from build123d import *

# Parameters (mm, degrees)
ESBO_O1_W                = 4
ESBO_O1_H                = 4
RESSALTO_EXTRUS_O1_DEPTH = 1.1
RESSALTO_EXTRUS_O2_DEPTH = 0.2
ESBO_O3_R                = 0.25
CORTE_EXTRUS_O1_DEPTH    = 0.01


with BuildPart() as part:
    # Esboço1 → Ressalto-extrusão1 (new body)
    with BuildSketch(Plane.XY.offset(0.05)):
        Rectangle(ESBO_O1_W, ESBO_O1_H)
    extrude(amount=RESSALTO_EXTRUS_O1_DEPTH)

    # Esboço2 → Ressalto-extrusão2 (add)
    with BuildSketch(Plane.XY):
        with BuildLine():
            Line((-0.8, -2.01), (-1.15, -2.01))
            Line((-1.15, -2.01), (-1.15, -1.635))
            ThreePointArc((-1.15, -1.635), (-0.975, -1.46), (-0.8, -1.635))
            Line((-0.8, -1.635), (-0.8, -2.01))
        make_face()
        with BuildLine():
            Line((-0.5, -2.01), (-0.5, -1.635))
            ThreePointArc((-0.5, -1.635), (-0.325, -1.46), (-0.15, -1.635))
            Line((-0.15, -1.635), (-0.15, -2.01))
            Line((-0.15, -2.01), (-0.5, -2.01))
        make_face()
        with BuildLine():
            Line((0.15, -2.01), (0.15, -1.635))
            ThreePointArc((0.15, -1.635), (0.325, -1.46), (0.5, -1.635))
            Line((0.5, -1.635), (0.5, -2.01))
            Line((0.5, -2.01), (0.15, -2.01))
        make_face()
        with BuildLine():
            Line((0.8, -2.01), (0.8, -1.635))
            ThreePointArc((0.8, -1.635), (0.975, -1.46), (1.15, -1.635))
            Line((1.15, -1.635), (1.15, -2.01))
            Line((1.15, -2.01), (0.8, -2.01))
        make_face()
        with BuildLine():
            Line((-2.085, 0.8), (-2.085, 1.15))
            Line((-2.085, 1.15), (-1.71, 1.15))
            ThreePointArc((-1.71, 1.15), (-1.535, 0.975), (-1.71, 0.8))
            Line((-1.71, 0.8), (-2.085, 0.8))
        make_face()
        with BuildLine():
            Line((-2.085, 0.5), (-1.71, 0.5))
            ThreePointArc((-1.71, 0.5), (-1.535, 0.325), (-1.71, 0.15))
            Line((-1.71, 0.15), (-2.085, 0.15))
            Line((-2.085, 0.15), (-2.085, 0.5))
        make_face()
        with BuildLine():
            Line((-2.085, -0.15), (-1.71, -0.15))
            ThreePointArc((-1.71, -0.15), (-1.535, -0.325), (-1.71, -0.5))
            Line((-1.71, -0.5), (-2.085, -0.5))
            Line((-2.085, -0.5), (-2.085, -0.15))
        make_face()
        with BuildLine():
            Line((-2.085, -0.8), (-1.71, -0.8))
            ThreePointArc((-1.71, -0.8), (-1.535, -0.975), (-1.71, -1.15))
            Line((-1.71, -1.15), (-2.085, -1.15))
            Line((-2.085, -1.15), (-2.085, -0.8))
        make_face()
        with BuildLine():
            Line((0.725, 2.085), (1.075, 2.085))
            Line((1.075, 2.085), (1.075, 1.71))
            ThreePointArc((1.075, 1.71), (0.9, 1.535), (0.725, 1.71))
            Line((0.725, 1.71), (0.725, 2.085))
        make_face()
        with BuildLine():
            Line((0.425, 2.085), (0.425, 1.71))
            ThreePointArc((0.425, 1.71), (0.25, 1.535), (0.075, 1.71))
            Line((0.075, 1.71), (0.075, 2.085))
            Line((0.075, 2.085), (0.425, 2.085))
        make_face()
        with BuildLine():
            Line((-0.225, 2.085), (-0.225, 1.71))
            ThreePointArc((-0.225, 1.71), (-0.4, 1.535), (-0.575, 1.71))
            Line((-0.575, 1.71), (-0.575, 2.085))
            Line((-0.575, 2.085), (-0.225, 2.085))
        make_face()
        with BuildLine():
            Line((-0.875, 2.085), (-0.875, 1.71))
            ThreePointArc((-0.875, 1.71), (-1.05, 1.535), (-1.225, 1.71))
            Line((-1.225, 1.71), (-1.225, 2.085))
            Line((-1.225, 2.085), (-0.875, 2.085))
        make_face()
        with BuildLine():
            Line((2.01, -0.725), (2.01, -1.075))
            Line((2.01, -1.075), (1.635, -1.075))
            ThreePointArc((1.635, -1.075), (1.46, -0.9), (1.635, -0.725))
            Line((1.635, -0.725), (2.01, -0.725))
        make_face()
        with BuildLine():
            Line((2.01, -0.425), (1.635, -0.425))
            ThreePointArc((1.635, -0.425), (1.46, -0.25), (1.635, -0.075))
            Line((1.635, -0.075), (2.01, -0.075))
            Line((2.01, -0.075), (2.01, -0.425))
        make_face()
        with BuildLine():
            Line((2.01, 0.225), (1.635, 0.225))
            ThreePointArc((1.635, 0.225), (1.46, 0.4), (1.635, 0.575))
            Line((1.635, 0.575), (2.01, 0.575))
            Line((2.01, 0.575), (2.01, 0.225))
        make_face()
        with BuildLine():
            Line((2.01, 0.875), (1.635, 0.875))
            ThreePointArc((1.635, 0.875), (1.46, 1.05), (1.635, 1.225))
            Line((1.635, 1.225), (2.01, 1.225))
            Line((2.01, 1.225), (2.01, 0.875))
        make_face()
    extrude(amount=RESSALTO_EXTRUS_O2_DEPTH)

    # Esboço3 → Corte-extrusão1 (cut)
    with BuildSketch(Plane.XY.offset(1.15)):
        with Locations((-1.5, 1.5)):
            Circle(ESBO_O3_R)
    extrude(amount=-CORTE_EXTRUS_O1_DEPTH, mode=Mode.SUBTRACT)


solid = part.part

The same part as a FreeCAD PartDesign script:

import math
import FreeCAD as App
import Part
import Sketcher
Q = App.Units.Quantity


def add_polygon(sketch, points):
    """Adds a closed chain of lines whose ends are joined by coincident constraints."""
    first, n = sketch.GeometryCount, len(points)
    for a, b in zip(points, points[1:] + points[:1]):
        sketch.addGeometry(Part.LineSegment(App.Vector(*a, 0), App.Vector(*b, 0)), False)
    for i in range(n):
        sketch.addConstraint(Sketcher.Constraint("Coincident", first + i, 2, first + (i + 1) % n, 1))

doc = App.newDocument("Part")
params = doc.addObject("Spreadsheet::Sheet", "Params")
for row, (alias, value) in enumerate([
    ("sketch1_width", "4 mm"),
    ("pad1_length", "1.1 mm"),
    ("pad2_length", "0.2 mm"),
    ("sketch3_diameter", "0.5 mm"),
    ("pocket1_length", "0.01 mm"),
], start=1):
    params.set(f"A{row}", alias)
    params.set(f"B{row}", "=" + value)
    params.setAlias(f"B{row}", alias)

body = doc.addObject("PartDesign::Body", "Body")

# Sketch on XY plane
sketch1 = body.newObject("Sketcher::SketchObject", "Sketch")
sketch1.AttachmentSupport = (doc.getObject("XY_Plane"), [""])
sketch1.MapMode = "FlatFace"
sketch1.AttachmentOffset = App.Placement(App.Vector(0, 0, 0.05), App.Rotation())
add_polygon(sketch1, [(-2, 2), (-2, -2), (2, -2), (2, 2)])  # lines 0-3
sketch1.addConstraint(Sketcher.Constraint("Vertical", 0))
sketch1.addConstraint(Sketcher.Constraint("Horizontal", 1))
sketch1.addConstraint(Sketcher.Constraint("Vertical", 2))
sketch1.addConstraint(Sketcher.Constraint("Horizontal", 3))
sketch1.addConstraint(Sketcher.Constraint("Symmetric", 0, 2, 2, 2, -1, 1))
sketch1.addConstraint(Sketcher.Constraint("Equal", 3, 0))
sketch1.addConstraint(Sketcher.Constraint("DistanceX", 1, 1, 1, 2, Q("4 mm")))
sketch1.setExpression("Constraints[10]", "Params.sketch1_width")
pad1 = body.newObject("PartDesign::Pad", "Pad")
pad1.Profile = sketch1
pad1.setExpression("Length", "Params.pad1_length")

# Sketch on XY plane
sketch2 = body.newObject("Sketcher::SketchObject", "Sketch001")
sketch2.AttachmentSupport = (doc.getObject("XY_Plane"), [""])
sketch2.MapMode = "FlatFace"
sketch2.addGeometry(Part.LineSegment(App.Vector(-1.15, -2.01, 0), App.Vector(-0.8, -2.01, 0)), False)
sketch2.addGeometry(Part.LineSegment(App.Vector(-0.8, -2.01, 0), App.Vector(-0.8, -1.64, 0)), False)
sketch2.addGeometry(Part.ArcOfCircle(Part.Circle(App.Vector(-0.97, -1.64, 0), App.Vector(0, 0, 1), 0.17), math.radians(0), math.radians(180)), False)
sketch2.addGeometry(Part.LineSegment(App.Vector(-1.15, -1.64, 0), App.Vector(-1.15, -2.01, 0)), False)
sketch2.addGeometry(Part.LineSegment(App.Vector(-0.5, -1.64, 0), App.Vector(-0.5, -2.01, 0)), False)
sketch2.addGeometry(Part.LineSegment(App.Vector(-0.5, -2.01, 0), App.Vector(-0.15, -2.01, 0)), False)
sketch2.addGeometry(Part.LineSegment(App.Vector(-0.15, -2.01, 0), App.Vector(-0.15, -1.64, 0)), False)
sketch2.addGeometry(Part.ArcOfCircle(Part.Circle(App.Vector(-0.33, -1.64, 0), App.Vector(0, 0, 1), 0.17), math.radians(0), math.radians(180)), False)
sketch2.addGeometry(Part.LineSegment(App.Vector(0.15, -1.64, 0), App.Vector(0.15, -2.01, 0)), False)
sketch2.addGeometry(Part.LineSegment(App.Vector(0.15, -2.01, 0), App.Vector(0.5, -2.01, 0)), False)
sketch2.addGeometry(Part.LineSegment(App.Vector(0.5, -2.01, 0), App.Vector(0.5, -1.64, 0)), False)
sketch2.addGeometry(Part.ArcOfCircle(Part.Circle(App.Vector(0.33, -1.64, 0), App.Vector(0, 0, 1), 0.17), math.radians(0), math.radians(180)), False)
sketch2.addGeometry(Part.LineSegment(App.Vector(0.8, -1.64, 0), App.Vector(0.8, -2.01, 0)), False)
sketch2.addGeometry(Part.LineSegment(App.Vector(0.8, -2.01, 0), App.Vector(1.15, -2.01, 0)), False)
sketch2.addGeometry(Part.LineSegment(App.Vector(1.15, -2.01, 0), App.Vector(1.15, -1.64, 0)), False)
sketch2.addGeometry(Part.ArcOfCircle(Part.Circle(App.Vector(0.97, -1.64, 0), App.Vector(0, 0, 1), 0.17), math.radians(0), math.radians(180)), False)
sketch2.addGeometry(Part.LineSegment(App.Vector(-2.08, 1.15, 0), App.Vector(-2.08, 0.8, 0)), False)
sketch2.addGeometry(Part.LineSegment(App.Vector(-2.08, 0.8, 0), App.Vector(-1.71, 0.8, 0)), False)
sketch2.addGeometry(Part.ArcOfCircle(Part.Circle(App.Vector(-1.71, 0.97, 0), App.Vector(0, 0, 1), 0.17), math.radians(-90), math.radians(90)), False)
sketch2.addGeometry(Part.LineSegment(App.Vector(-1.71, 1.15, 0), App.Vector(-2.08, 1.15, 0)), False)
sketch2.addGeometry(Part.LineSegment(App.Vector(-1.71, 0.5, 0), App.Vector(-2.08, 0.5, 0)), False)
sketch2.addGeometry(Part.LineSegment(App.Vector(-2.08, 0.5, 0), App.Vector(-2.08, 0.15, 0)), False)
sketch2.addGeometry(Part.LineSegment(App.Vector(-2.08, 0.15, 0), App.Vector(-1.71, 0.15, 0)), False)
sketch2.addGeometry(Part.ArcOfCircle(Part.Circle(App.Vector(-1.71, 0.33, 0), App.Vector(0, 0, 1), 0.17), math.radians(-90), math.radians(90)), False)
sketch2.addGeometry(Part.LineSegment(App.Vector(-1.71, -0.15, 0), App.Vector(-2.08, -0.15, 0)), False)
sketch2.addGeometry(Part.LineSegment(App.Vector(-2.08, -0.15, 0), App.Vector(-2.08, -0.5, 0)), False)
sketch2.addGeometry(Part.LineSegment(App.Vector(-2.08, -0.5, 0), App.Vector(-1.71, -0.5, 0)), False)
sketch2.addGeometry(Part.ArcOfCircle(Part.Circle(App.Vector(-1.71, -0.33, 0), App.Vector(0, 0, 1), 0.17), math.radians(-90), math.radians(90)), False)
sketch2.addGeometry(Part.LineSegment(App.Vector(-1.71, -0.8, 0), App.Vector(-2.08, -0.8, 0)), False)
sketch2.addGeometry(Part.LineSegment(App.Vector(-2.08, -0.8, 0), App.Vector(-2.08, -1.15, 0)), False)
sketch2.addGeometry(Part.LineSegment(App.Vector(-2.08, -1.15, 0), App.Vector(-1.71, -1.15, 0)), False)
sketch2.addGeometry(Part.ArcOfCircle(Part.Circle(App.Vector(-1.71, -0.97, 0), App.Vector(0, 0, 1), 0.17), math.radians(-90), math.radians(90)), False)
sketch2.addGeometry(Part.LineSegment(App.Vector(1.07, 2.08, 0), App.Vector(0.72, 2.08, 0)), False)
sketch2.addGeometry(Part.LineSegment(App.Vector(0.72, 2.08, 0), App.Vector(0.72, 1.71, 0)), False)
sketch2.addGeometry(Part.ArcOfCircle(Part.Circle(App.Vector(0.9, 1.71, 0), App.Vector(0, 0, 1), 0.17), math.radians(180), math.radians(360)), False)
sketch2.addGeometry(Part.LineSegment(App.Vector(1.07, 1.71, 0), App.Vector(1.07, 2.08, 0)), False)
sketch2.addGeometry(Part.LineSegment(App.Vector(0.42, 1.71, 0), App.Vector(0.42, 2.08, 0)), False)
sketch2.addGeometry(Part.LineSegment(App.Vector(0.42, 2.08, 0), App.Vector(0.07, 2.08, 0)), False)
sketch2.addGeometry(Part.LineSegment(App.Vector(0.07, 2.08, 0), App.Vector(0.07, 1.71, 0)), False)
sketch2.addGeometry(Part.ArcOfCircle(Part.Circle(App.Vector(0.25, 1.71, 0), App.Vector(0, 0, 1), 0.17), math.radians(180), math.radians(360)), False)
sketch2.addGeometry(Part.LineSegment(App.Vector(-0.23, 1.71, 0), App.Vector(-0.23, 2.08, 0)), False)
sketch2.addGeometry(Part.LineSegment(App.Vector(-0.23, 2.08, 0), App.Vector(-0.57, 2.08, 0)), False)
sketch2.addGeometry(Part.LineSegment(App.Vector(-0.57, 2.08, 0), App.Vector(-0.57, 1.71, 0)), False)
sketch2.addGeometry(Part.ArcOfCircle(Part.Circle(App.Vector(-0.4, 1.71, 0), App.Vector(0, 0, 1), 0.17), math.radians(180), math.radians(360)), False)
sketch2.addGeometry(Part.LineSegment(App.Vector(-0.88, 1.71, 0), App.Vector(-0.88, 2.08, 0)), False)
sketch2.addGeometry(Part.LineSegment(App.Vector(-0.88, 2.08, 0), App.Vector(-1.23, 2.08, 0)), False)
sketch2.addGeometry(Part.LineSegment(App.Vector(-1.23, 2.08, 0), App.Vector(-1.23, 1.71, 0)), False)
sketch2.addGeometry(Part.ArcOfCircle(Part.Circle(App.Vector(-1.05, 1.71, 0), App.Vector(0, 0, 1), 0.17), math.radians(180), math.radians(360)), False)
sketch2.addGeometry(Part.LineSegment(App.Vector(2.01, -1.07, 0), App.Vector(2.01, -0.72, 0)), False)
sketch2.addGeometry(Part.LineSegment(App.Vector(2.01, -0.72, 0), App.Vector(1.64, -0.72, 0)), False)
sketch2.addGeometry(Part.ArcOfCircle(Part.Circle(App.Vector(1.64, -0.9, 0), App.Vector(0, 0, 1), 0.17), math.radians(90), math.radians(270)), False)
sketch2.addGeometry(Part.LineSegment(App.Vector(1.64, -1.07, 0), App.Vector(2.01, -1.07, 0)), False)
sketch2.addGeometry(Part.LineSegment(App.Vector(1.64, -0.42, 0), App.Vector(2.01, -0.42, 0)), False)
sketch2.addGeometry(Part.LineSegment(App.Vector(2.01, -0.42, 0), App.Vector(2.01, -0.07, 0)), False)
sketch2.addGeometry(Part.LineSegment(App.Vector(2.01, -0.07, 0), App.Vector(1.64, -0.07, 0)), False)
sketch2.addGeometry(Part.ArcOfCircle(Part.Circle(App.Vector(1.64, -0.25, 0), App.Vector(0, 0, 1), 0.17), math.radians(90), math.radians(270)), False)
sketch2.addGeometry(Part.LineSegment(App.Vector(1.64, 0.23, 0), App.Vector(2.01, 0.23, 0)), False)
sketch2.addGeometry(Part.LineSegment(App.Vector(2.01, 0.23, 0), App.Vector(2.01, 0.57, 0)), False)
sketch2.addGeometry(Part.LineSegment(App.Vector(2.01, 0.57, 0), App.Vector(1.64, 0.57, 0)), False)
sketch2.addGeometry(Part.ArcOfCircle(Part.Circle(App.Vector(1.64, 0.4, 0), App.Vector(0, 0, 1), 0.17), math.radians(90), math.radians(270)), False)
sketch2.addGeometry(Part.LineSegment(App.Vector(1.64, 0.88, 0), App.Vector(2.01, 0.88, 0)), False)
sketch2.addGeometry(Part.LineSegment(App.Vector(2.01, 0.88, 0), App.Vector(2.01, 1.23, 0)), False)
sketch2.addGeometry(Part.LineSegment(App.Vector(2.01, 1.23, 0), App.Vector(1.64, 1.23, 0)), False)
sketch2.addGeometry(Part.ArcOfCircle(Part.Circle(App.Vector(1.64, 1.05, 0), App.Vector(0, 0, 1), 0.17), math.radians(90), math.radians(270)), False)
sketch2.addConstraint(Sketcher.Constraint("Coincident", 0, 2, 1, 1))
sketch2.addConstraint(Sketcher.Constraint("Tangent", 1, 2, 2, 1))
sketch2.addConstraint(Sketcher.Constraint("Tangent", 2, 2, 3, 1))
sketch2.addConstraint(Sketcher.Constraint("Coincident", 3, 2, 0, 1))
sketch2.addConstraint(Sketcher.Constraint("Coincident", 4, 2, 5, 1))
sketch2.addConstraint(Sketcher.Constraint("Coincident", 5, 2, 6, 1))
sketch2.addConstraint(Sketcher.Constraint("Tangent", 6, 2, 7, 1))
sketch2.addConstraint(Sketcher.Constraint("Tangent", 7, 2, 4, 1))
sketch2.addConstraint(Sketcher.Constraint("Coincident", 8, 2, 9, 1))
sketch2.addConstraint(Sketcher.Constraint("Coincident", 9, 2, 10, 1))
sketch2.addConstraint(Sketcher.Constraint("Tangent", 10, 2, 11, 1))
sketch2.addConstraint(Sketcher.Constraint("Tangent", 11, 2, 8, 1))
sketch2.addConstraint(Sketcher.Constraint("Coincident", 12, 2, 13, 1))
sketch2.addConstraint(Sketcher.Constraint("Coincident", 13, 2, 14, 1))
sketch2.addConstraint(Sketcher.Constraint("Tangent", 14, 2, 15, 1))
sketch2.addConstraint(Sketcher.Constraint("Tangent", 15, 2, 12, 1))
sketch2.addConstraint(Sketcher.Constraint("Coincident", 16, 2, 17, 1))
sketch2.addConstraint(Sketcher.Constraint("Tangent", 17, 2, 18, 1))
sketch2.addConstraint(Sketcher.Constraint("Tangent", 18, 2, 19, 1))
sketch2.addConstraint(Sketcher.Constraint("Coincident", 19, 2, 16, 1))
sketch2.addConstraint(Sketcher.Constraint("Coincident", 20, 2, 21, 1))
sketch2.addConstraint(Sketcher.Constraint("Coincident", 21, 2, 22, 1))
sketch2.addConstraint(Sketcher.Constraint("Tangent", 22, 2, 23, 1))
sketch2.addConstraint(Sketcher.Constraint("Tangent", 23, 2, 20, 1))
sketch2.addConstraint(Sketcher.Constraint("Coincident", 24, 2, 25, 1))
sketch2.addConstraint(Sketcher.Constraint("Coincident", 25, 2, 26, 1))
sketch2.addConstraint(Sketcher.Constraint("Tangent", 26, 2, 27, 1))
sketch2.addConstraint(Sketcher.Constraint("Tangent", 27, 2, 24, 1))
sketch2.addConstraint(Sketcher.Constraint("Coincident", 28, 2, 29, 1))
sketch2.addConstraint(Sketcher.Constraint("Coincident", 29, 2, 30, 1))
sketch2.addConstraint(Sketcher.Constraint("Tangent", 30, 2, 31, 1))
sketch2.addConstraint(Sketcher.Constraint("Tangent", 31, 2, 28, 1))
sketch2.addConstraint(Sketcher.Constraint("Coincident", 32, 2, 33, 1))
sketch2.addConstraint(Sketcher.Constraint("Tangent", 33, 2, 34, 1))
sketch2.addConstraint(Sketcher.Constraint("Tangent", 34, 2, 35, 1))
sketch2.addConstraint(Sketcher.Constraint("Coincident", 35, 2, 32, 1))
sketch2.addConstraint(Sketcher.Constraint("Coincident", 36, 2, 37, 1))
sketch2.addConstraint(Sketcher.Constraint("Coincident", 37, 2, 38, 1))
sketch2.addConstraint(Sketcher.Constraint("Tangent", 38, 2, 39, 1))
sketch2.addConstraint(Sketcher.Constraint("Tangent", 39, 2, 36, 1))
sketch2.addConstraint(Sketcher.Constraint("Coincident", 40, 2, 41, 1))
sketch2.addConstraint(Sketcher.Constraint("Coincident", 41, 2, 42, 1))
sketch2.addConstraint(Sketcher.Constraint("Tangent", 42, 2, 43, 1))
sketch2.addConstraint(Sketcher.Constraint("Tangent", 43, 2, 40, 1))
sketch2.addConstraint(Sketcher.Constraint("Coincident", 44, 2, 45, 1))
sketch2.addConstraint(Sketcher.Constraint("Coincident", 45, 2, 46, 1))
sketch2.addConstraint(Sketcher.Constraint("Tangent", 46, 2, 47, 1))
sketch2.addConstraint(Sketcher.Constraint("Tangent", 47, 2, 44, 1))
sketch2.addConstraint(Sketcher.Constraint("Coincident", 48, 2, 49, 1))
sketch2.addConstraint(Sketcher.Constraint("Tangent", 49, 2, 50, 1))
sketch2.addConstraint(Sketcher.Constraint("Tangent", 50, 2, 51, 1))
sketch2.addConstraint(Sketcher.Constraint("Coincident", 51, 2, 48, 1))
sketch2.addConstraint(Sketcher.Constraint("Coincident", 52, 2, 53, 1))
sketch2.addConstraint(Sketcher.Constraint("Coincident", 53, 2, 54, 1))
sketch2.addConstraint(Sketcher.Constraint("Tangent", 54, 2, 55, 1))
sketch2.addConstraint(Sketcher.Constraint("Tangent", 55, 2, 52, 1))
sketch2.addConstraint(Sketcher.Constraint("Coincident", 56, 2, 57, 1))
sketch2.addConstraint(Sketcher.Constraint("Coincident", 57, 2, 58, 1))
sketch2.addConstraint(Sketcher.Constraint("Tangent", 58, 2, 59, 1))
sketch2.addConstraint(Sketcher.Constraint("Tangent", 59, 2, 56, 1))
sketch2.addConstraint(Sketcher.Constraint("Coincident", 60, 2, 61, 1))
sketch2.addConstraint(Sketcher.Constraint("Coincident", 61, 2, 62, 1))
sketch2.addConstraint(Sketcher.Constraint("Tangent", 62, 2, 63, 1))
sketch2.addConstraint(Sketcher.Constraint("Tangent", 63, 2, 60, 1))
sketch2.addConstraint(Sketcher.Constraint("Horizontal", 0))
sketch2.addConstraint(Sketcher.Constraint("Vertical", 1))
sketch2.addConstraint(Sketcher.Constraint("Vertical", 3))
sketch2.addConstraint(Sketcher.Constraint("Vertical", 4))
sketch2.addConstraint(Sketcher.Constraint("Horizontal", 5))
sketch2.addConstraint(Sketcher.Constraint("Vertical", 6))
sketch2.addConstraint(Sketcher.Constraint("Vertical", 8))
sketch2.addConstraint(Sketcher.Constraint("Horizontal", 9))
sketch2.addConstraint(Sketcher.Constraint("Vertical", 10))
sketch2.addConstraint(Sketcher.Constraint("Vertical", 12))
sketch2.addConstraint(Sketcher.Constraint("Horizontal", 13))
sketch2.addConstraint(Sketcher.Constraint("Vertical", 14))
sketch2.addConstraint(Sketcher.Constraint("Vertical", 16))
sketch2.addConstraint(Sketcher.Constraint("Horizontal", 17))
sketch2.addConstraint(Sketcher.Constraint("Horizontal", 19))
sketch2.addConstraint(Sketcher.Constraint("Horizontal", 20))
sketch2.addConstraint(Sketcher.Constraint("Vertical", 21))
sketch2.addConstraint(Sketcher.Constraint("Horizontal", 22))
sketch2.addConstraint(Sketcher.Constraint("Horizontal", 24))
sketch2.addConstraint(Sketcher.Constraint("Vertical", 25))
sketch2.addConstraint(Sketcher.Constraint("Horizontal", 26))
sketch2.addConstraint(Sketcher.Constraint("Horizontal", 28))
sketch2.addConstraint(Sketcher.Constraint("Vertical", 29))
sketch2.addConstraint(Sketcher.Constraint("Horizontal", 30))
sketch2.addConstraint(Sketcher.Constraint("Horizontal", 32))
sketch2.addConstraint(Sketcher.Constraint("Vertical", 33))
sketch2.addConstraint(Sketcher.Constraint("Vertical", 35))
sketch2.addConstraint(Sketcher.Constraint("Vertical", 36))
sketch2.addConstraint(Sketcher.Constraint("Horizontal", 37))
sketch2.addConstraint(Sketcher.Constraint("Vertical", 38))
sketch2.addConstraint(Sketcher.Constraint("Vertical", 40))
sketch2.addConstraint(Sketcher.Constraint("Horizontal", 41))
sketch2.addConstraint(Sketcher.Constraint("Vertical", 42))
sketch2.addConstraint(Sketcher.Constraint("Vertical", 44))
sketch2.addConstraint(Sketcher.Constraint("Horizontal", 45))
sketch2.addConstraint(Sketcher.Constraint("Vertical", 46))
sketch2.addConstraint(Sketcher.Constraint("Vertical", 48))
sketch2.addConstraint(Sketcher.Constraint("Horizontal", 49))
sketch2.addConstraint(Sketcher.Constraint("Horizontal", 51))
sketch2.addConstraint(Sketcher.Constraint("Horizontal", 52))
sketch2.addConstraint(Sketcher.Constraint("Vertical", 53))
sketch2.addConstraint(Sketcher.Constraint("Horizontal", 54))
sketch2.addConstraint(Sketcher.Constraint("Horizontal", 56))
sketch2.addConstraint(Sketcher.Constraint("Vertical", 57))
sketch2.addConstraint(Sketcher.Constraint("Horizontal", 58))
sketch2.addConstraint(Sketcher.Constraint("Horizontal", 60))
sketch2.addConstraint(Sketcher.Constraint("Vertical", 61))
sketch2.addConstraint(Sketcher.Constraint("Horizontal", 62))
sketch2.addConstraint(Sketcher.Constraint("Equal", 2, 7))
sketch2.addConstraint(Sketcher.Constraint("Equal", 7, 11))
sketch2.addConstraint(Sketcher.Constraint("Equal", 11, 15))
sketch2.addConstraint(Sketcher.Constraint("Equal", 15, 18))
sketch2.addConstraint(Sketcher.Constraint("Equal", 18, 23))
sketch2.addConstraint(Sketcher.Constraint("Equal", 23, 27))
sketch2.addConstraint(Sketcher.Constraint("Equal", 27, 31))
sketch2.addConstraint(Sketcher.Constraint("Equal", 31, 34))
sketch2.addConstraint(Sketcher.Constraint("Equal", 34, 39))
sketch2.addConstraint(Sketcher.Constraint("Equal", 39, 43))
sketch2.addConstraint(Sketcher.Constraint("Equal", 43, 47))
sketch2.addConstraint(Sketcher.Constraint("Equal", 47, 50))
sketch2.addConstraint(Sketcher.Constraint("Equal", 50, 55))
sketch2.addConstraint(Sketcher.Constraint("Equal", 55, 59))
sketch2.addConstraint(Sketcher.Constraint("Equal", 59, 63))
sketch2.addConstraint(Sketcher.Constraint("Symmetric", 7, 3, 11, 3, -2))
sketch2.addConstraint(Sketcher.Constraint("Symmetric", 2, 3, 15, 3, -2))
sketch2.addConstraint(Sketcher.Constraint("Symmetric", 23, 3, 27, 3, -1))
sketch2.addConstraint(Sketcher.Constraint("Symmetric", 18, 3, 31, 3, -1))
sketch2.addConstraint(Sketcher.Constraint("Horizontal", 2, 3, 7, 3))
sketch2.addConstraint(Sketcher.Constraint("Horizontal", 34, 3, 39, 3))
sketch2.addConstraint(Sketcher.Constraint("Horizontal", 39, 3, 43, 3))
sketch2.addConstraint(Sketcher.Constraint("Horizontal", 43, 3, 47, 3))
sketch2.addConstraint(Sketcher.Constraint("Horizontal", 3, 2, 4, 2))
sketch2.addConstraint(Sketcher.Constraint("Horizontal", 5, 2, 8, 2))
sketch2.addConstraint(Sketcher.Constraint("Horizontal", 9, 2, 12, 2))
sketch2.addConstraint(Sketcher.Constraint("Horizontal", 35, 2, 36, 2))
sketch2.addConstraint(Sketcher.Constraint("Horizontal", 37, 2, 40, 2))
sketch2.addConstraint(Sketcher.Constraint("Horizontal", 41, 2, 44, 2))
sketch2.addConstraint(Sketcher.Constraint("Vertical", 18, 3, 23, 3))
sketch2.addConstraint(Sketcher.Constraint("Vertical", 50, 3, 55, 3))
sketch2.addConstraint(Sketcher.Constraint("Vertical", 55, 3, 59, 3))
sketch2.addConstraint(Sketcher.Constraint("Vertical", 59, 3, 63, 3))
sketch2.addConstraint(Sketcher.Constraint("Vertical", 19, 2, 20, 2))
sketch2.addConstraint(Sketcher.Constraint("Vertical", 21, 2, 24, 2))
sketch2.addConstraint(Sketcher.Constraint("Vertical", 25, 2, 28, 2))
sketch2.addConstraint(Sketcher.Constraint("Vertical", 51, 2, 52, 2))
sketch2.addConstraint(Sketcher.Constraint("Vertical", 53, 2, 56, 2))
sketch2.addConstraint(Sketcher.Constraint("Vertical", 57, 2, 60, 2))
sketch2.addConstraint(Sketcher.Constraint("Equal", 30, 49))
sketch2.addConstraint(Sketcher.Constraint("Equal", 62, 1))
sketch2.addConstraint(Sketcher.Constraint("Equal", 14, 33))
sketch2.addConstraint(Sketcher.Constraint("Radius", 2, Q("0.175 mm")))
sketch2.addConstraint(Sketcher.Constraint("DistanceX", -1, 1, 34, 3, Q("0.9 mm")))
sketch2.addConstraint(Sketcher.Constraint("DistanceX", 43, 3, -1, 1, Q("0.4 mm")))
sketch2.addConstraint(Sketcher.Constraint("DistanceY", 50, 3, -1, 1, Q("0.9 mm")))
sketch2.addConstraint(Sketcher.Constraint("DistanceY", -1, 1, 59, 3, Q("0.4 mm")))
sketch2.addConstraint(Sketcher.Constraint("DistanceX", 0, 2, -1, 1, Q("0.8 mm")))
sketch2.addConstraint(Sketcher.Constraint("DistanceX", 4, 2, -1, 1, Q("0.5 mm")))
sketch2.addConstraint(Sketcher.Constraint("DistanceY", -1, 1, 16, 2, Q("0.8 mm")))
sketch2.addConstraint(Sketcher.Constraint("DistanceY", -1, 1, 20, 2, Q("0.5 mm")))
sketch2.addConstraint(Sketcher.Constraint("DistanceX", 17, 1, 17, 2, Q("0.375 mm")))
sketch2.addConstraint(Sketcher.Constraint("DistanceX", 18, 3, -1, 1, Q("1.71 mm")))
sketch2.addConstraint(Sketcher.Constraint("DistanceY", -1, 1, 34, 3, Q("1.71 mm")))
sketch2.addConstraint(Sketcher.Constraint("DistanceX", -1, 1, 39, 3, Q("0.25 mm")))
sketch2.addConstraint(Sketcher.Constraint("DistanceX", 47, 3, -1, 1, Q("1.05 mm")))
sketch2.addConstraint(Sketcher.Constraint("DistanceY", 55, 3, -1, 1, Q("0.25 mm")))
sketch2.addConstraint(Sketcher.Constraint("DistanceY", -1, 1, 63, 3, Q("1.05 mm")))
sketch2.addConstraint(Sketcher.Constraint("DistanceY", 0, 2, -1, 1, Q("2.01 mm")))
sketch2.addConstraint(Sketcher.Constraint("DistanceX", -1, 1, 48, 2, Q("2.01 mm")))
pad2 = body.newObject("PartDesign::Pad", "Pad001")
pad2.Profile = sketch2
pad2.setExpression("Length", "Params.pad2_length")

# Sketch on XY plane
sketch3 = body.newObject("Sketcher::SketchObject", "Sketch002")
sketch3.AttachmentSupport = (doc.getObject("XY_Plane"), [""])
sketch3.MapMode = "FlatFace"
sketch3.AttachmentOffset = App.Placement(App.Vector(0, 0, 1.15), App.Rotation())
sketch3.addGeometry(Part.Circle(App.Vector(-1.5, 1.5, 0), App.Vector(0, 0, 1), 0.25), False)
sketch3.addConstraint(Sketcher.Constraint("Diameter", 0, Q("0.5 mm")))
sketch3.addConstraint(Sketcher.Constraint("DistanceX", 0, 3, -1, 1, Q("1.5 mm")))
sketch3.addConstraint(Sketcher.Constraint("DistanceY", -1, 1, 0, 3, Q("1.5 mm")))
sketch3.setExpression("Constraints[0]", "Params.sketch3_diameter")
pocket1 = body.newObject("PartDesign::Pocket", "Pocket")
pocket1.Profile = sketch3
pocket1.setExpression("Length", "Params.pocket1_length")

doc.recompute()
